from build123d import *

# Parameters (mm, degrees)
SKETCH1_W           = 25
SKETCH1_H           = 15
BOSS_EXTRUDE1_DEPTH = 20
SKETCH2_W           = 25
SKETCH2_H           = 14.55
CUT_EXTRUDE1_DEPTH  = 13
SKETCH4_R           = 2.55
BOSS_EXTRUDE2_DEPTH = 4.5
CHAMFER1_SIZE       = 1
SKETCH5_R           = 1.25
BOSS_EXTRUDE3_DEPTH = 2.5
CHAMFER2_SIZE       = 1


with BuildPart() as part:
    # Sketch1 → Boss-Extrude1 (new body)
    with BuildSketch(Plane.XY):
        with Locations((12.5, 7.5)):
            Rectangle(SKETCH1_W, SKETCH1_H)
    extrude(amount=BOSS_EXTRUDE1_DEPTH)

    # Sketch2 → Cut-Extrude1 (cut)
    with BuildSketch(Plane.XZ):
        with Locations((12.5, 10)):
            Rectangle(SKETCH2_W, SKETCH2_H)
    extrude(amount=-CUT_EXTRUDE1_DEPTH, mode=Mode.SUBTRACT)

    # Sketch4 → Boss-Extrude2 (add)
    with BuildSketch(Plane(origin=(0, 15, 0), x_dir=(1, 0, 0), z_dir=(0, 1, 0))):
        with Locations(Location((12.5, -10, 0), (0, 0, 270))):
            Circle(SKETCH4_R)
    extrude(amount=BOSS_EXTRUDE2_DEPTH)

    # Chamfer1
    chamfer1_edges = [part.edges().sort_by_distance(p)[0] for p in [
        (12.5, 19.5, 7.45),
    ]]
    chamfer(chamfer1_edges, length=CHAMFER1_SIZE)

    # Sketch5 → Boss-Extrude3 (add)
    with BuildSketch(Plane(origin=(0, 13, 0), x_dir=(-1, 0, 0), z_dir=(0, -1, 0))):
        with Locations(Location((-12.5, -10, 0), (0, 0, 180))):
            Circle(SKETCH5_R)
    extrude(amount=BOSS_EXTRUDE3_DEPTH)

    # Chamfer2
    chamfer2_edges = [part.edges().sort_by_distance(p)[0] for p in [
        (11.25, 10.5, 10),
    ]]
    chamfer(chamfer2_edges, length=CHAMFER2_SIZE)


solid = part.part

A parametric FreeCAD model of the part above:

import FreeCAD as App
import Part
import Sketcher
from FreeCAD import Vector


def edges_at(feature, points):
    """Names of the edges that pass closest to the given points."""
    edges = feature.Shape.Edges
    near = lambda p: min(range(len(edges)), key=lambda i: edges[i].distToShape(Part.Vertex(*p))[0])
    return sorted({f"Edge{near(p) + 1}" for p in points})


def add_polygon(sketch, points):
    """Adds a closed chain of lines whose ends are joined by coincident constraints."""
    first, n = sketch.GeometryCount, len(points)
    for a, b in zip(points, points[1:] + points[:1]):
        sketch.addGeometry(Part.LineSegment(App.Vector(*a, 0), App.Vector(*b, 0)), False)
    for i in range(n):
        sketch.addConstraint(Sketcher.Constraint("Coincident", first + i, 2, first + (i + 1) % n, 1))

doc = App.newDocument("Part")
body = doc.addObject("PartDesign::Body", "Body")

sketch1 = doc.addObject("Sketcher::SketchObject", "Sketch")
body.addObject(sketch1)
sketch1.AttachmentSupport = (doc.XY_Plane, [""])
sketch1.MapMode = "FlatFace"
add_polygon(sketch1, [(0, 15), (0, 0), (25, 0), (25, 15)])
sketch1.addConstraint(Sketcher.Constraint("Vertical", 0))
sketch1.addConstraint(Sketcher.Constraint("Horizontal", 1))
sketch1.addConstraint(Sketcher.Constraint("Vertical", 2))
sketch1.addConstraint(Sketcher.Constraint("Horizontal", 3))
sketch1.addConstraint(Sketcher.Constraint("Coincident", 0, 2, -1, 1))
sketch1.addConstraint(Sketcher.Constraint("DistanceX", 1, 1, 1, 2, 25.0))
sketch1.addConstraint(Sketcher.Constraint("DistanceY", 0, 2, 0, 1, 15.0))
pad1 = doc.addObject("PartDesign::Pad", "Pad")
body.addObject(pad1)
pad1.Profile = sketch1
pad1.Length = 20

sketch2 = doc.addObject("Sketcher::SketchObject", "Sketch001")
body.addObject(sketch2)
sketch2.AttachmentSupport = (doc.XZ_Plane, [""])
sketch2.MapMode = "FlatFace"
add_polygon(sketch2, [(0, 17), (0, 3), (25, 3), (25, 17)])
sketch2.addConstraint(Sketcher.Constraint("Vertical", 0))
sketch2.addConstraint(Sketcher.Constraint("Horizontal", 1))
sketch2.addConstraint(Sketcher.Constraint("Vertical", 2))
sketch2.addConstraint(Sketcher.Constraint("Horizontal", 3))
sketch2.addConstraint(Sketcher.Constraint("PointOnObject", 0, 2, -2))
sketch2.addConstraint(Sketcher.Constraint("DistanceX", 1, 1, 1, 2, 25.0))
sketch2.addConstraint(Sketcher.Constraint("DistanceY", 0, 2, 0, 1, 14.55))
sketch2.addConstraint(Sketcher.Constraint("DistanceY", -1, 1, 0, 2, 2.725))
pocket1 = doc.addObject("PartDesign::Pocket", "Pocket")
body.addObject(pocket1)
pocket1.Profile = sketch2
pocket1.Length = 13

sketch3 = doc.addObject("Sketcher::SketchObject", "Sketch002")
body.addObject(sketch3)
sketch3.AttachmentSupport = (doc.XZ_Plane, [""])
sketch3.MapMode = "FlatFace"
sketch3.AttachmentOffset = App.Placement(Vector(0, 0, -15), App.Rotation())
sketch3.addGeometry(Part.Circle(Vector(12.5, 10, 0), Vector(0, 0, 1), 2.5), False)
sketch3.addConstraint(Sketcher.Constraint("Diameter", 0, 5.1))
sketch3.addConstraint(Sketcher.Constraint("DistanceY", -1, 1, 0, 3, 10.0))
sketch3.addConstraint(Sketcher.Constraint("DistanceX", -1, 1, 0, 3, 12.5))
pad2 = doc.addObject("PartDesign::Pad", "Pad001")
body.addObject(pad2)
pad2.Profile = sketch3
pad2.Length = 4.5
pad2.Reversed = True
doc.recompute()

chamfer = doc.addObject("PartDesign::Chamfer", "Chamfer")
body.addObject(chamfer)
chamfer.Base = (pad2, edges_at(pad2, [(12.5, 19.5, 7.45)]))
chamfer.Size = 1

sketch4 = doc.addObject("Sketcher::SketchObject", "Sketch003")
body.addObject(sketch4)
sketch4.AttachmentSupport = (doc.XZ_Plane, [""])
sketch4.MapMode = "FlatFace"
sketch4.AttachmentOffset = App.Placement(Vector(0, 0, -13), App.Rotation())
sketch4.addGeometry(Part.Circle(Vector(12.5, 10, 0), Vector(0, 0, 1), 1.2), False)
sketch4.addConstraint(Sketcher.Constraint("Diameter", 0, 2.5))
sketch4.addConstraint(Sketcher.Constraint("DistanceY", -1, 1, 0, 3, 10.0))
sketch4.addConstraint(Sketcher.Constraint("DistanceX", -1, 1, 0, 3, 12.5))
pad3 = doc.addObject("PartDesign::Pad", "Pad002")
body.addObject(pad3)
pad3.Profile = sketch4
pad3.Length = 2.5
doc.recompute()

chamfer2 = doc.addObject("PartDesign::Chamfer", "Chamfer001")
body.addObject(chamfer2)
chamfer2.Base = (pad3, edges_at(pad3, [(11.25, 10.5, 10)]))
chamfer2.Size = 1

doc.recompute()
